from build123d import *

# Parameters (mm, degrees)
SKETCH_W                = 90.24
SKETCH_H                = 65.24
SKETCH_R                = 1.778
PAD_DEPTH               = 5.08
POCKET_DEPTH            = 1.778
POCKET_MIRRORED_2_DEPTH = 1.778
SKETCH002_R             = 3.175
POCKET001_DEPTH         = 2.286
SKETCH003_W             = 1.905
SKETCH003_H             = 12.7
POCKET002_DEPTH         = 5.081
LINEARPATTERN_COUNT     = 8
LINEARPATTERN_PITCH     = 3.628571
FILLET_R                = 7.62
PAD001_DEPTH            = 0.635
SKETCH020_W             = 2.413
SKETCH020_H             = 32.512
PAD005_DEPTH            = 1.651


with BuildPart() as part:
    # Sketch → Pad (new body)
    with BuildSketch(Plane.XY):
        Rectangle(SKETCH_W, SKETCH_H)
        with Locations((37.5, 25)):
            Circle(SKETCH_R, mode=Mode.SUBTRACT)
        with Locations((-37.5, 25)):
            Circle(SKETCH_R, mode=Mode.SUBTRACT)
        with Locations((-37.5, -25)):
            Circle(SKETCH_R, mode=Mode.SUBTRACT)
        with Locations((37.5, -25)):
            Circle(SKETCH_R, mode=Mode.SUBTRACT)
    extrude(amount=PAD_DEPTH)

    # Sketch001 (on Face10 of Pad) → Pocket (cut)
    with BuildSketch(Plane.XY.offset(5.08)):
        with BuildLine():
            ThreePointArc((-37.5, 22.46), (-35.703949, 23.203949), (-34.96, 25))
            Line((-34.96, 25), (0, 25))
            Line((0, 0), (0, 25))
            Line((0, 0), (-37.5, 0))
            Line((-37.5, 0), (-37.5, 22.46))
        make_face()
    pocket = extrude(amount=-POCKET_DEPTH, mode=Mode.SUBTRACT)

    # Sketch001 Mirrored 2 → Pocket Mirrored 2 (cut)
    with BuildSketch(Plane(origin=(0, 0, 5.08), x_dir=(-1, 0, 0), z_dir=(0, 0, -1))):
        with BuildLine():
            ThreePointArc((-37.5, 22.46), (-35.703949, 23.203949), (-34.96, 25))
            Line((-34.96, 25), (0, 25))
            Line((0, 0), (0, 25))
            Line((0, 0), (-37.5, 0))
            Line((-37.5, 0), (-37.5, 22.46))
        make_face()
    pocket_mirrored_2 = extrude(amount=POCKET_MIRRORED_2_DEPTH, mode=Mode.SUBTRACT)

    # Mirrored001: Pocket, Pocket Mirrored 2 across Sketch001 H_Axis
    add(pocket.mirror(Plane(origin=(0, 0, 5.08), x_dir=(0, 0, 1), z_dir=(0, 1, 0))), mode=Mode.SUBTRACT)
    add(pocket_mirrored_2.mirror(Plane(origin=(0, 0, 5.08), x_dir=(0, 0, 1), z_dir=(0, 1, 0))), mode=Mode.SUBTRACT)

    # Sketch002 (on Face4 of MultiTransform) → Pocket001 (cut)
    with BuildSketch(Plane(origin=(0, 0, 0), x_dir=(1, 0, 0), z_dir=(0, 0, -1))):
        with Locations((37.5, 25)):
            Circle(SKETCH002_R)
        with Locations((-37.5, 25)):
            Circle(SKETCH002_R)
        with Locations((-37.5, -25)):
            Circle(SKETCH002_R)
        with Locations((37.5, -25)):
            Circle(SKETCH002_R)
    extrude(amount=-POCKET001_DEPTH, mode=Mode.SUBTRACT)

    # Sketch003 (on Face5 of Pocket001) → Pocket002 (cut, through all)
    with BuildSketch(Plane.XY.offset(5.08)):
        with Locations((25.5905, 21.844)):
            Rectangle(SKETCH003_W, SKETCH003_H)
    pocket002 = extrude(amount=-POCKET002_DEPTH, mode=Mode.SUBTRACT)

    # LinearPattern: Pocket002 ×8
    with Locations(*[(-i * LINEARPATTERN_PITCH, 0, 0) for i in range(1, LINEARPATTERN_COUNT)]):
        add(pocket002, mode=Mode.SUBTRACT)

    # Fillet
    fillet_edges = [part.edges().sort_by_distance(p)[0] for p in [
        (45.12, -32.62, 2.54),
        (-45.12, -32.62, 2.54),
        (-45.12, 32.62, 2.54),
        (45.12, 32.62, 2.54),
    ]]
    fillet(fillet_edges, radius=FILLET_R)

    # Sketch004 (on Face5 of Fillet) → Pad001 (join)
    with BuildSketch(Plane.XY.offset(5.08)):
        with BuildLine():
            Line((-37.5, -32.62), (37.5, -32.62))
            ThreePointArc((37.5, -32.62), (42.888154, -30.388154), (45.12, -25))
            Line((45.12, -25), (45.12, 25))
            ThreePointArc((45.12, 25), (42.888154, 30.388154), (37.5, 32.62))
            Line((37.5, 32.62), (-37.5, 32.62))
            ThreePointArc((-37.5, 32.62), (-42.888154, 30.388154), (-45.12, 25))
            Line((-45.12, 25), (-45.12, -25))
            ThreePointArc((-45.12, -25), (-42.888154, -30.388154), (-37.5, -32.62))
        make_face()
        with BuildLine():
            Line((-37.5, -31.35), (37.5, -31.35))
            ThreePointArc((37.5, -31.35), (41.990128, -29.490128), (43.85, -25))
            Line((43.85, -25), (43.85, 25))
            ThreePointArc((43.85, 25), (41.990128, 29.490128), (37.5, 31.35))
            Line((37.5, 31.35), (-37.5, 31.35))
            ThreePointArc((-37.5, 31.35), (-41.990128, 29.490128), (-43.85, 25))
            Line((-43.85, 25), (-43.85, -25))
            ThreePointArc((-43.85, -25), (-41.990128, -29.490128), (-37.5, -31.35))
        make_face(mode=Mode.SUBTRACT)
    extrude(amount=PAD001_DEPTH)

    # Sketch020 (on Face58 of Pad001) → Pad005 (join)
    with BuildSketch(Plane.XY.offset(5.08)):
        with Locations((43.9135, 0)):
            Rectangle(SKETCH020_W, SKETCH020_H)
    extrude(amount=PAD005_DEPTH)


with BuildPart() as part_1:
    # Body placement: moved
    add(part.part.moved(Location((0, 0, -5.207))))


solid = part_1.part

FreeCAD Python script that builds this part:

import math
import FreeCAD as App
import Part
import Sketcher
Q = App.Units.Quantity


def edges_at(feature, points):
    """Names of the edges that pass closest to the given points."""
    edges = feature.Shape.Edges
    near = lambda p: min(range(len(edges)), key=lambda i: edges[i].distToShape(Part.Vertex(*p))[0])
    return sorted({f"Edge{near(p) + 1}" for p in points})

doc = App.newDocument("Part")
body = doc.addObject("PartDesign::Body", "Body")

sketch1 = doc.addObject("Sketcher::SketchObject", "Sketch")
body.addObject(sketch1)
sketch1.AttachmentSupport = (doc.XY_Plane, [""])
sketch1.MapMode = "FlatFace"
sketch1.addGeometry([
    Part.LineSegment(App.Vector(-45.12, 32.62, 0), App.Vector(-45.12, -32.62, 0)),
    Part.LineSegment(App.Vector(-45.12, -32.62, 0), App.Vector(45.12, -32.62, 0)),
    Part.LineSegment(App.Vector(45.12, -32.62, 0), App.Vector(45.12, 32.62, 0)),
    Part.LineSegment(App.Vector(45.12, 32.62, 0), App.Vector(-45.12, 32.62, 0)),
    Part.Circle(App.Vector(-37.5, -25, 0), App.Vector(0, 0, 1), 1.778),
    Part.Circle(App.Vector(37.5, -25, 0), App.Vector(0, 0, 1), 1.778),
    Part.Circle(App.Vector(-37.5, 25, 0), App.Vector(0, 0, 1), 1.778),
    Part.Circle(App.Vector(37.5, 25, 0), App.Vector(0, 0, 1), 1.778),
], False)
sketch1.addConstraint([
    Sketcher.Constraint("Coincident", 0, 2, 1, 1),
    Sketcher.Constraint("Coincident", 1, 2, 2, 1),
    Sketcher.Constraint("Coincident", 2, 2, 3, 1),
    Sketcher.Constraint("Coincident", 3, 2, 0, 1),
    Sketcher.Constraint("Vertical", 0),
    Sketcher.Constraint("Horizontal", 1),
    Sketcher.Constraint("Vertical", 2),
    Sketcher.Constraint("Horizontal", 3),
    Sketcher.Constraint("Equal", 4, 5),
    Sketcher.Constraint("Equal", 5, 6),
    Sketcher.Constraint("Equal", 6, 7),
    Sketcher.Constraint("Symmetric", 5, 3, 6, 3, -1, 1),
    Sketcher.Constraint("Symmetric", 4, 3, 7, 3, -1, 1),
    Sketcher.Constraint("Symmetric", 0, 2, 2, 2, -1, 1),
    Sketcher.Constraint("Symmetric", 4, 3, 5, 3, -2),
    Sketcher.Constraint("Diameter", 4, Q("0.14 in")),
    Sketcher.Constraint("DistanceX", 0, 2, 4, 3, Q("0.3 in")),
    Sketcher.Constraint("DistanceY", 0, 2, 4, 3, Q("0.3 in")),
    Sketcher.Constraint("DistanceX", 1, 1, 1, 2, 90.24),
    Sketcher.Constraint("DistanceY", 0, 2, 0, 1, 65.24),
])
pad1 = doc.addObject("PartDesign::Pad", "Pad")
body.addObject(pad1)
pad1.Profile = sketch1
pad1.Length = Q("0.2 in")

sketch2 = doc.addObject("Sketcher::SketchObject", "Sketch001")
body.addObject(sketch2)
sketch2.AttachmentSupport = (doc.XY_Plane, [""])
sketch2.MapMode = "FlatFace"
sketch2.AttachmentOffset = App.Placement(App.Vector(0, 0, 0.2 * 25.4), App.Rotation())
sketch2.addGeometry([
    Part.ArcOfCircle(Part.Circle(App.Vector(-37.500001, 25.000001, 0), App.Vector(0, 0, 1), 2.540001), math.radians(-89.999983), math.radians(-0.000017)),
    Part.LineSegment(App.Vector(-37.5, 22.46, 0), App.Vector(-37.5, 0, 0)),
    Part.LineSegment(App.Vector(-37.5, 0, 0), App.Vector(0, 0, 0)),
    Part.LineSegment(App.Vector(0, 0, 0), App.Vector(0, 25, 0)),
    Part.LineSegment(App.Vector(0, 25, 0), App.Vector(-34.96, 25, 0)),
], False)
sketch2.addConstraint([
    Sketcher.Constraint("Coincident", 0, 1, 1, 1),
    Sketcher.Constraint("Coincident", 1, 2, 2, 1),
    Sketcher.Constraint("Coincident", 2, 2, 3, 1),
    Sketcher.Constraint("Coincident", 3, 2, 4, 1),
    Sketcher.Constraint("Coincident", 4, 2, 0, 2),
    Sketcher.Constraint("Vertical", 1),
    Sketcher.Constraint("Horizontal", 2),
    Sketcher.Constraint("Vertical", 3),
    Sketcher.Constraint("Horizontal", 4),
    Sketcher.Constraint("Coincident", 2, 2, -1, 1),
    Sketcher.Constraint("Horizontal", 0, 3, 3, 2),
    Sketcher.Constraint("Radius", 0, Q("0.1 in")),
    Sketcher.Constraint("DistanceX", 0, 1, 4, 2, Q("0.1 in")),
    Sketcher.Constraint("DistanceX", 2, 1, 2, 2, 37.5),
    Sketcher.Constraint("DistanceY", 1, 2, 1, 1, 22.46),
])
pocket1 = doc.addObject("PartDesign::Pocket", "Pocket")
body.addObject(pocket1)
pocket1.Profile = sketch2
pocket1.Length = Q("0.07 in")

sketch3 = doc.addObject("Sketcher::SketchObject", "Sketch002")
body.addObject(sketch3)
sketch3.AttachmentSupport = (doc.XY_Plane, [""])
sketch3.MapMode = "FlatFace"
sketch3.AttachmentOffset = App.Placement(App.Vector(0, 0, 0.2 * 25.4), App.Rotation())
sketch3.addGeometry([
    Part.ArcOfCircle(Part.Circle(App.Vector(37.500001, 25.000001, 0), App.Vector(0, 0, 1), 2.540001), math.radians(-179.999983), math.radians(-90.000017)),
    Part.LineSegment(App.Vector(37.5, 22.46, 0), App.Vector(37.5, 0, 0)),
    Part.LineSegment(App.Vector(37.5, 0, 0), App.Vector(0, 0, 0)),
    Part.LineSegment(App.Vector(0, 0, 0), App.Vector(0, 25, 0)),
    Part.LineSegment(App.Vector(0, 25, 0), App.Vector(34.96, 25, 0)),
], False)
sketch3.addConstraint([
    Sketcher.Constraint("Coincident", 0, 2, 1, 1),
    Sketcher.Constraint("Coincident", 1, 2, 2, 1),
    Sketcher.Constraint("Coincident", 2, 2, 3, 1),
    Sketcher.Constraint("Coincident", 3, 2, 4, 1),
    Sketcher.Constraint("Coincident", 4, 2, 0, 1),
    Sketcher.Constraint("Vertical", 1),
    Sketcher.Constraint("Horizontal", 2),
    Sketcher.Constraint("Vertical", 3),
    Sketcher.Constraint("Horizontal", 4),
    Sketcher.Constraint("Coincident", 2, 2, -1, 1),
    Sketcher.Constraint("Horizontal", 0, 3, 3, 2),
    Sketcher.Constraint("Radius", 0, Q("0.1 in")),
    Sketcher.Constraint("DistanceX", 4, 2, 0, 2, Q("0.1 in")),
    Sketcher.Constraint("DistanceX", 2, 2, 2, 1, 37.5),
    Sketcher.Constraint("DistanceY", 1, 2, 1, 1, 22.46),
])
pocket2 = doc.addObject("PartDesign::Pocket", "Pocket001")
body.addObject(pocket2)
pocket2.Profile = sketch3
pocket2.Length = Q("0.07 in")
doc.recompute()

mirrored = doc.addObject("PartDesign::Mirrored", "Mirrored")
body.addObject(mirrored)
mirrored.Originals = [pocket1, pocket2]
mirrored.MirrorPlane = (doc.XZ_Plane, [""])
body.Tip = mirrored

sketch4 = doc.addObject("Sketcher::SketchObject", "Sketch003")
body.addObject(sketch4)
sketch4.AttachmentSupport = (doc.XY_Plane, [""])
sketch4.MapMode = "FlatFace"
sketch4.addGeometry([
    Part.Circle(App.Vector(37.5, -25, 0), App.Vector(0, 0, 1), 3.175),
    Part.Circle(App.Vector(-37.5, -25, 0), App.Vector(0, 0, 1), 3.175),
    Part.Circle(App.Vector(-37.5, 25, 0), App.Vector(0, 0, 1), 3.175),
    Part.Circle(App.Vector(37.5, 25, 0), App.Vector(0, 0, 1), 3.175),
], False)
sketch4.addConstraint([
    Sketcher.Constraint("Equal", 0, 1),
    Sketcher.Constraint("Equal", 1, 2),
    Sketcher.Constraint("Equal", 2, 3),
    Sketcher.Constraint("Symmetric", 0, 3, 2, 3, -1, 1),
    Sketcher.Constraint("Symmetric", 1, 3, 3, 3, -1, 1),
    Sketcher.Constraint("Symmetric", 0, 3, 1, 3, -2),
    Sketcher.Constraint("Diameter", 0, Q("0.25 in")),
    Sketcher.Constraint("DistanceX", -1, 1, 0, 3, 37.5),
    Sketcher.Constraint("DistanceY", 0, 3, -1, 1, 25.0),
])
pocket3 = doc.addObject("PartDesign::Pocket", "Pocket002")
body.addObject(pocket3)
pocket3.Profile = sketch4
pocket3.Length = Q("0.09 in")
pocket3.Reversed = True

sketch5 = doc.addObject("Sketcher::SketchObject", "Sketch004")
body.addObject(sketch5)
sketch5.AttachmentSupport = (doc.XY_Plane, [""])
sketch5.MapMode = "FlatFace"
sketch5.AttachmentOffset = App.Placement(App.Vector(0, 0, 0.2 * 25.4), App.Rotation())
sketch5.addGeometry([
    Part.LineSegment(App.Vector(24.638, 28.194, 0), App.Vector(24.638, 15.494, 0)),
    Part.LineSegment(App.Vector(24.638, 15.494, 0), App.Vector(26.543, 15.494, 0)),
    Part.LineSegment(App.Vector(26.543, 15.494, 0), App.Vector(26.543, 28.194, 0)),
    Part.LineSegment(App.Vector(26.543, 28.194, 0), App.Vector(24.638, 28.194, 0)),
], False)
sketch5.addConstraint([
    Sketcher.Constraint("Coincident", 0, 2, 1, 1),
    Sketcher.Constraint("Coincident", 1, 2, 2, 1),
    Sketcher.Constraint("Coincident", 2, 2, 3, 1),
    Sketcher.Constraint("Coincident", 3, 2, 0, 1),
    Sketcher.Constraint("Vertical", 0),
    Sketcher.Constraint("Horizontal", 1),
    Sketcher.Constraint("Vertical", 2),
    Sketcher.Constraint("Horizontal", 3),
    Sketcher.Constraint("DistanceY", 0, 2, 0, 1, Q("0.5 in")),
    Sketcher.Constraint("DistanceX", 1, 1, 1, 2, Q("0.075 in")),
    Sketcher.Constraint("DistanceX", -1, 1, 0, 2, Q("0.97 in")),
    Sketcher.Constraint("DistanceY", -1, 1, 0, 2, Q("0.61 in")),
])
pocket4 = doc.addObject("PartDesign::Pocket", "Pocket003")
body.addObject(pocket4)
pocket4.Profile = sketch5
pocket4.Type = "ThroughAll"
doc.recompute()

linearpattern = doc.addObject("PartDesign::LinearPattern", "LinearPattern")
body.addObject(linearpattern)
linearpattern.Originals = [pocket4]
linearpattern.Direction = (doc.X_Axis, [""])
linearpattern.Mode = "offset"
linearpattern.Offset = 3.628571
linearpattern.Occurrences = 8
linearpattern.Reversed = True
body.Tip = linearpattern
doc.recompute()

fillet = doc.addObject("PartDesign::Fillet", "Fillet")
body.addObject(fillet)
fillet.Base = (linearpattern, edges_at(linearpattern, [
    (45.12, -32.62, 2.54),
    (-45.12, -32.62, 2.54),
    (-45.12, 32.62, 2.54),
    (45.12, 32.62, 2.54),
]))
fillet.Radius = Q("0.3 in")

sketch6 = doc.addObject("Sketcher::SketchObject", "Sketch005")
body.addObject(sketch6)
sketch6.AttachmentSupport = (doc.XY_Plane, [""])
sketch6.MapMode = "FlatFace"
sketch6.AttachmentOffset = App.Placement(App.Vector(0, 0, 0.2 * 25.4), App.Rotation())
sketch6.addGeometry([
    Part.LineSegment(App.Vector(-37.5, -32.62, 0), App.Vector(37.5, -32.62, 0)),
    Part.ArcOfCircle(Part.Circle(App.Vector(37.500001, -25.000001, 0), App.Vector(0, 0, 1), 7.619999), math.radians(-90.000008), math.radians(0.000008)),
    Part.LineSegment(App.Vector(45.12, -25, 0), App.Vector(45.12, 25, 0)),
    Part.ArcOfCircle(Part.Circle(App.Vector(37.500001, 25.000001, 0), App.Vector(0, 0, 1), 7.619999), math.radians(-0.000008), math.radians(90.000008)),
    Part.LineSegment(App.Vector(37.5, 32.62, 0), App.Vector(-37.5, 32.62, 0)),
    Part.ArcOfCircle(Part.Circle(App.Vector(-37.500001, 25.000001, 0), App.Vector(0, 0, 1), 7.619999), math.radians(89.999992), math.radians(180.000008)),
    Part.LineSegment(App.Vector(-45.12, 25, 0), App.Vector(-45.12, -25, 0)),
    Part.ArcOfCircle(Part.Circle(App.Vector(-37.500001, -25.000001, 0), App.Vector(0, 0, 1), 7.619999), math.radians(179.999992), math.radians(270.000008)),
    Part.LineSegment(App.Vector(37.5, -31.35, 0), App.Vector(-37.5, -31.35, 0)),
    Part.ArcOfCircle(Part.Circle(App.Vector(-37.5, -25, 0), App.Vector(0, 0, 1), 6.35), math.radians(-179.999998), math.radians(-90.000002)),
    Part.LineSegment(App.Vector(-43.85, -25, 0), App.Vector(-43.85, 25, 0)),
    Part.ArcOfCircle(Part.Circle(App.Vector(-37.5, 25, 0), App.Vector(0, 0, 1), 6.35), math.radians(90.000002), math.radians(179.999998)),
    Part.LineSegment(App.Vector(-37.5, 31.35, 0), App.Vector(37.5, 31.35, 0)),
    Part.ArcOfCircle(Part.Circle(App.Vector(37.5, 25, 0), App.Vector(0, 0, 1), 6.35), math.radians(0.000002), math.radians(89.999998)),
    Part.LineSegment(App.Vector(43.85, 25, 0), App.Vector(43.85, -25, 0)),
    Part.ArcOfCircle(Part.Circle(App.Vector(37.5, -25, 0), App.Vector(0, 0, 1), 6.35), math.radians(-89.999998), math.radians(-0.000002)),
], False)
sketch6.addConstraint([
    Sketcher.Constraint("Tangent", 0, 2, 1, 1),
    Sketcher.Constraint("Tangent", 1, 2, 2, 1),
    Sketcher.Constraint("Tangent", 2, 2, 3, 1),
    Sketcher.Constraint("Tangent", 3, 2, 4, 1),
    Sketcher.Constraint("Tangent", 4, 2, 5, 1),
    Sketcher.Constraint("Tangent", 5, 2, 6, 1),
    Sketcher.Constraint("Tangent", 6, 2, 7, 1),
    Sketcher.Constraint("Tangent", 7, 2, 0, 1),
    Sketcher.Constraint("Tangent", 8, 2, 9, 2),
    Sketcher.Constraint("Tangent", 9, 1, 10, 1),
    Sketcher.Constraint("Tangent", 10, 2, 11, 2),
    Sketcher.Constraint("Tangent", 11, 1, 12, 1),
    Sketcher.Constraint("Tangent", 12, 2, 13, 2),
    Sketcher.Constraint("Tangent", 13, 1, 14, 1),
    Sketcher.Constraint("Tangent", 14, 2, 15, 2),
    Sketcher.Constraint("Tangent", 15, 1, 8, 1),
    Sketcher.Constraint("Horizontal", 0),
    Sketcher.Constraint("Vertical", 2),
    Sketcher.Constraint("Horizontal", 4),
    Sketcher.Constraint("Vertical", 6),
    Sketcher.Constraint("Horizontal", 8),
    Sketcher.Constraint("Vertical", 10),
    Sketcher.Constraint("Horizontal", 12),
    Sketcher.Constraint("Vertical", 14),
    Sketcher.Constraint("Coincident", 9, 3, 7, 3),
    Sketcher.Constraint("Coincident", 11, 3, 5, 3),
    Sketcher.Constraint("Coincident", 13, 3, 3, 3),
    Sketcher.Constraint("Equal", 1, 3),
    Sketcher.Constraint("Equal", 3, 5),
    Sketcher.Constraint("Equal", 5, 7),
    Sketcher.Constraint("Equal", 13, 15),
    Sketcher.Constraint("Symmetric", 1, 3, 5, 3, -1, 1),
    Sketcher.Constraint("Radius", 1, Q("0.3 in")),
    Sketcher.Constraint("Radius", 9, Q("0.25 in")),
    Sketcher.Constraint("DistanceX", 0, 1, 0, 2, 75.0),
    Sketcher.Constraint("DistanceY", 2, 1, 2, 2, 50.0),
])
pad2 = doc.addObject("PartDesign::Pad", "Pad001")
body.addObject(pad2)
pad2.Profile = sketch6
pad2.Length = Q("0.025 in")

sketch7 = doc.addObject("Sketcher::SketchObject", "Sketch006")
body.addObject(sketch7)
sketch7.AttachmentSupport = (doc.XY_Plane, [""])
sketch7.MapMode = "FlatFace"
sketch7.AttachmentOffset = App.Placement(App.Vector(0, 0, 0.2 * 25.4), App.Rotation())
sketch7.addGeometry([
    Part.LineSegment(App.Vector(42.707, 16.256, 0), App.Vector(42.707, -16.256, 0)),
    Part.LineSegment(App.Vector(42.707, -16.256, 0), App.Vector(45.12, -16.256, 0)),
    Part.LineSegment(App.Vector(45.12, -16.256, 0), App.Vector(45.12, 16.256, 0)),
    Part.LineSegment(App.Vector(45.12, 16.256, 0), App.Vector(42.707, 16.256, 0)),
], False)
sketch7.addConstraint([
    Sketcher.Constraint("Coincident", 0, 2, 1, 1),
    Sketcher.Constraint("Coincident", 1, 2, 2, 1),
    Sketcher.Constraint("Coincident", 2, 2, 3, 1),
    Sketcher.Constraint("Coincident", 3, 2, 0, 1),
    Sketcher.Constraint("Vertical", 0),
    Sketcher.Constraint("Horizontal", 1),
    Sketcher.Constraint("Vertical", 2),
    Sketcher.Constraint("Horizontal", 3),
    Sketcher.Constraint("DistanceY", 0, 2, 0, 1, Q("1.28 in")),
    Sketcher.Constraint("DistanceX", 1, 1, 1, 2, Q("0.095 in")),
    Sketcher.Constraint("DistanceY", 0, 2, -1, 1, Q("0.64 in")),
    Sketcher.Constraint("DistanceX", -1, 1, 0, 2, 42.707),
])
pad3 = doc.addObject("PartDesign::Pad", "Pad002")
body.addObject(pad3)
pad3.Profile = sketch7
pad3.Length = Q("0.065 in")
body2 = doc.addObject("PartDesign::Body", "Body001")
doc.recompute()

body.Placement = App.Placement(App.Vector(0, 0, -5.207), App.Rotation(App.Vector(0, 0, 1), 0))
boolean = doc.addObject("PartDesign::Boolean", "Boolean")
body2.addObject(boolean)
boolean.Type = "Fuse"
boolean.addObjects([body])

doc.recompute()
